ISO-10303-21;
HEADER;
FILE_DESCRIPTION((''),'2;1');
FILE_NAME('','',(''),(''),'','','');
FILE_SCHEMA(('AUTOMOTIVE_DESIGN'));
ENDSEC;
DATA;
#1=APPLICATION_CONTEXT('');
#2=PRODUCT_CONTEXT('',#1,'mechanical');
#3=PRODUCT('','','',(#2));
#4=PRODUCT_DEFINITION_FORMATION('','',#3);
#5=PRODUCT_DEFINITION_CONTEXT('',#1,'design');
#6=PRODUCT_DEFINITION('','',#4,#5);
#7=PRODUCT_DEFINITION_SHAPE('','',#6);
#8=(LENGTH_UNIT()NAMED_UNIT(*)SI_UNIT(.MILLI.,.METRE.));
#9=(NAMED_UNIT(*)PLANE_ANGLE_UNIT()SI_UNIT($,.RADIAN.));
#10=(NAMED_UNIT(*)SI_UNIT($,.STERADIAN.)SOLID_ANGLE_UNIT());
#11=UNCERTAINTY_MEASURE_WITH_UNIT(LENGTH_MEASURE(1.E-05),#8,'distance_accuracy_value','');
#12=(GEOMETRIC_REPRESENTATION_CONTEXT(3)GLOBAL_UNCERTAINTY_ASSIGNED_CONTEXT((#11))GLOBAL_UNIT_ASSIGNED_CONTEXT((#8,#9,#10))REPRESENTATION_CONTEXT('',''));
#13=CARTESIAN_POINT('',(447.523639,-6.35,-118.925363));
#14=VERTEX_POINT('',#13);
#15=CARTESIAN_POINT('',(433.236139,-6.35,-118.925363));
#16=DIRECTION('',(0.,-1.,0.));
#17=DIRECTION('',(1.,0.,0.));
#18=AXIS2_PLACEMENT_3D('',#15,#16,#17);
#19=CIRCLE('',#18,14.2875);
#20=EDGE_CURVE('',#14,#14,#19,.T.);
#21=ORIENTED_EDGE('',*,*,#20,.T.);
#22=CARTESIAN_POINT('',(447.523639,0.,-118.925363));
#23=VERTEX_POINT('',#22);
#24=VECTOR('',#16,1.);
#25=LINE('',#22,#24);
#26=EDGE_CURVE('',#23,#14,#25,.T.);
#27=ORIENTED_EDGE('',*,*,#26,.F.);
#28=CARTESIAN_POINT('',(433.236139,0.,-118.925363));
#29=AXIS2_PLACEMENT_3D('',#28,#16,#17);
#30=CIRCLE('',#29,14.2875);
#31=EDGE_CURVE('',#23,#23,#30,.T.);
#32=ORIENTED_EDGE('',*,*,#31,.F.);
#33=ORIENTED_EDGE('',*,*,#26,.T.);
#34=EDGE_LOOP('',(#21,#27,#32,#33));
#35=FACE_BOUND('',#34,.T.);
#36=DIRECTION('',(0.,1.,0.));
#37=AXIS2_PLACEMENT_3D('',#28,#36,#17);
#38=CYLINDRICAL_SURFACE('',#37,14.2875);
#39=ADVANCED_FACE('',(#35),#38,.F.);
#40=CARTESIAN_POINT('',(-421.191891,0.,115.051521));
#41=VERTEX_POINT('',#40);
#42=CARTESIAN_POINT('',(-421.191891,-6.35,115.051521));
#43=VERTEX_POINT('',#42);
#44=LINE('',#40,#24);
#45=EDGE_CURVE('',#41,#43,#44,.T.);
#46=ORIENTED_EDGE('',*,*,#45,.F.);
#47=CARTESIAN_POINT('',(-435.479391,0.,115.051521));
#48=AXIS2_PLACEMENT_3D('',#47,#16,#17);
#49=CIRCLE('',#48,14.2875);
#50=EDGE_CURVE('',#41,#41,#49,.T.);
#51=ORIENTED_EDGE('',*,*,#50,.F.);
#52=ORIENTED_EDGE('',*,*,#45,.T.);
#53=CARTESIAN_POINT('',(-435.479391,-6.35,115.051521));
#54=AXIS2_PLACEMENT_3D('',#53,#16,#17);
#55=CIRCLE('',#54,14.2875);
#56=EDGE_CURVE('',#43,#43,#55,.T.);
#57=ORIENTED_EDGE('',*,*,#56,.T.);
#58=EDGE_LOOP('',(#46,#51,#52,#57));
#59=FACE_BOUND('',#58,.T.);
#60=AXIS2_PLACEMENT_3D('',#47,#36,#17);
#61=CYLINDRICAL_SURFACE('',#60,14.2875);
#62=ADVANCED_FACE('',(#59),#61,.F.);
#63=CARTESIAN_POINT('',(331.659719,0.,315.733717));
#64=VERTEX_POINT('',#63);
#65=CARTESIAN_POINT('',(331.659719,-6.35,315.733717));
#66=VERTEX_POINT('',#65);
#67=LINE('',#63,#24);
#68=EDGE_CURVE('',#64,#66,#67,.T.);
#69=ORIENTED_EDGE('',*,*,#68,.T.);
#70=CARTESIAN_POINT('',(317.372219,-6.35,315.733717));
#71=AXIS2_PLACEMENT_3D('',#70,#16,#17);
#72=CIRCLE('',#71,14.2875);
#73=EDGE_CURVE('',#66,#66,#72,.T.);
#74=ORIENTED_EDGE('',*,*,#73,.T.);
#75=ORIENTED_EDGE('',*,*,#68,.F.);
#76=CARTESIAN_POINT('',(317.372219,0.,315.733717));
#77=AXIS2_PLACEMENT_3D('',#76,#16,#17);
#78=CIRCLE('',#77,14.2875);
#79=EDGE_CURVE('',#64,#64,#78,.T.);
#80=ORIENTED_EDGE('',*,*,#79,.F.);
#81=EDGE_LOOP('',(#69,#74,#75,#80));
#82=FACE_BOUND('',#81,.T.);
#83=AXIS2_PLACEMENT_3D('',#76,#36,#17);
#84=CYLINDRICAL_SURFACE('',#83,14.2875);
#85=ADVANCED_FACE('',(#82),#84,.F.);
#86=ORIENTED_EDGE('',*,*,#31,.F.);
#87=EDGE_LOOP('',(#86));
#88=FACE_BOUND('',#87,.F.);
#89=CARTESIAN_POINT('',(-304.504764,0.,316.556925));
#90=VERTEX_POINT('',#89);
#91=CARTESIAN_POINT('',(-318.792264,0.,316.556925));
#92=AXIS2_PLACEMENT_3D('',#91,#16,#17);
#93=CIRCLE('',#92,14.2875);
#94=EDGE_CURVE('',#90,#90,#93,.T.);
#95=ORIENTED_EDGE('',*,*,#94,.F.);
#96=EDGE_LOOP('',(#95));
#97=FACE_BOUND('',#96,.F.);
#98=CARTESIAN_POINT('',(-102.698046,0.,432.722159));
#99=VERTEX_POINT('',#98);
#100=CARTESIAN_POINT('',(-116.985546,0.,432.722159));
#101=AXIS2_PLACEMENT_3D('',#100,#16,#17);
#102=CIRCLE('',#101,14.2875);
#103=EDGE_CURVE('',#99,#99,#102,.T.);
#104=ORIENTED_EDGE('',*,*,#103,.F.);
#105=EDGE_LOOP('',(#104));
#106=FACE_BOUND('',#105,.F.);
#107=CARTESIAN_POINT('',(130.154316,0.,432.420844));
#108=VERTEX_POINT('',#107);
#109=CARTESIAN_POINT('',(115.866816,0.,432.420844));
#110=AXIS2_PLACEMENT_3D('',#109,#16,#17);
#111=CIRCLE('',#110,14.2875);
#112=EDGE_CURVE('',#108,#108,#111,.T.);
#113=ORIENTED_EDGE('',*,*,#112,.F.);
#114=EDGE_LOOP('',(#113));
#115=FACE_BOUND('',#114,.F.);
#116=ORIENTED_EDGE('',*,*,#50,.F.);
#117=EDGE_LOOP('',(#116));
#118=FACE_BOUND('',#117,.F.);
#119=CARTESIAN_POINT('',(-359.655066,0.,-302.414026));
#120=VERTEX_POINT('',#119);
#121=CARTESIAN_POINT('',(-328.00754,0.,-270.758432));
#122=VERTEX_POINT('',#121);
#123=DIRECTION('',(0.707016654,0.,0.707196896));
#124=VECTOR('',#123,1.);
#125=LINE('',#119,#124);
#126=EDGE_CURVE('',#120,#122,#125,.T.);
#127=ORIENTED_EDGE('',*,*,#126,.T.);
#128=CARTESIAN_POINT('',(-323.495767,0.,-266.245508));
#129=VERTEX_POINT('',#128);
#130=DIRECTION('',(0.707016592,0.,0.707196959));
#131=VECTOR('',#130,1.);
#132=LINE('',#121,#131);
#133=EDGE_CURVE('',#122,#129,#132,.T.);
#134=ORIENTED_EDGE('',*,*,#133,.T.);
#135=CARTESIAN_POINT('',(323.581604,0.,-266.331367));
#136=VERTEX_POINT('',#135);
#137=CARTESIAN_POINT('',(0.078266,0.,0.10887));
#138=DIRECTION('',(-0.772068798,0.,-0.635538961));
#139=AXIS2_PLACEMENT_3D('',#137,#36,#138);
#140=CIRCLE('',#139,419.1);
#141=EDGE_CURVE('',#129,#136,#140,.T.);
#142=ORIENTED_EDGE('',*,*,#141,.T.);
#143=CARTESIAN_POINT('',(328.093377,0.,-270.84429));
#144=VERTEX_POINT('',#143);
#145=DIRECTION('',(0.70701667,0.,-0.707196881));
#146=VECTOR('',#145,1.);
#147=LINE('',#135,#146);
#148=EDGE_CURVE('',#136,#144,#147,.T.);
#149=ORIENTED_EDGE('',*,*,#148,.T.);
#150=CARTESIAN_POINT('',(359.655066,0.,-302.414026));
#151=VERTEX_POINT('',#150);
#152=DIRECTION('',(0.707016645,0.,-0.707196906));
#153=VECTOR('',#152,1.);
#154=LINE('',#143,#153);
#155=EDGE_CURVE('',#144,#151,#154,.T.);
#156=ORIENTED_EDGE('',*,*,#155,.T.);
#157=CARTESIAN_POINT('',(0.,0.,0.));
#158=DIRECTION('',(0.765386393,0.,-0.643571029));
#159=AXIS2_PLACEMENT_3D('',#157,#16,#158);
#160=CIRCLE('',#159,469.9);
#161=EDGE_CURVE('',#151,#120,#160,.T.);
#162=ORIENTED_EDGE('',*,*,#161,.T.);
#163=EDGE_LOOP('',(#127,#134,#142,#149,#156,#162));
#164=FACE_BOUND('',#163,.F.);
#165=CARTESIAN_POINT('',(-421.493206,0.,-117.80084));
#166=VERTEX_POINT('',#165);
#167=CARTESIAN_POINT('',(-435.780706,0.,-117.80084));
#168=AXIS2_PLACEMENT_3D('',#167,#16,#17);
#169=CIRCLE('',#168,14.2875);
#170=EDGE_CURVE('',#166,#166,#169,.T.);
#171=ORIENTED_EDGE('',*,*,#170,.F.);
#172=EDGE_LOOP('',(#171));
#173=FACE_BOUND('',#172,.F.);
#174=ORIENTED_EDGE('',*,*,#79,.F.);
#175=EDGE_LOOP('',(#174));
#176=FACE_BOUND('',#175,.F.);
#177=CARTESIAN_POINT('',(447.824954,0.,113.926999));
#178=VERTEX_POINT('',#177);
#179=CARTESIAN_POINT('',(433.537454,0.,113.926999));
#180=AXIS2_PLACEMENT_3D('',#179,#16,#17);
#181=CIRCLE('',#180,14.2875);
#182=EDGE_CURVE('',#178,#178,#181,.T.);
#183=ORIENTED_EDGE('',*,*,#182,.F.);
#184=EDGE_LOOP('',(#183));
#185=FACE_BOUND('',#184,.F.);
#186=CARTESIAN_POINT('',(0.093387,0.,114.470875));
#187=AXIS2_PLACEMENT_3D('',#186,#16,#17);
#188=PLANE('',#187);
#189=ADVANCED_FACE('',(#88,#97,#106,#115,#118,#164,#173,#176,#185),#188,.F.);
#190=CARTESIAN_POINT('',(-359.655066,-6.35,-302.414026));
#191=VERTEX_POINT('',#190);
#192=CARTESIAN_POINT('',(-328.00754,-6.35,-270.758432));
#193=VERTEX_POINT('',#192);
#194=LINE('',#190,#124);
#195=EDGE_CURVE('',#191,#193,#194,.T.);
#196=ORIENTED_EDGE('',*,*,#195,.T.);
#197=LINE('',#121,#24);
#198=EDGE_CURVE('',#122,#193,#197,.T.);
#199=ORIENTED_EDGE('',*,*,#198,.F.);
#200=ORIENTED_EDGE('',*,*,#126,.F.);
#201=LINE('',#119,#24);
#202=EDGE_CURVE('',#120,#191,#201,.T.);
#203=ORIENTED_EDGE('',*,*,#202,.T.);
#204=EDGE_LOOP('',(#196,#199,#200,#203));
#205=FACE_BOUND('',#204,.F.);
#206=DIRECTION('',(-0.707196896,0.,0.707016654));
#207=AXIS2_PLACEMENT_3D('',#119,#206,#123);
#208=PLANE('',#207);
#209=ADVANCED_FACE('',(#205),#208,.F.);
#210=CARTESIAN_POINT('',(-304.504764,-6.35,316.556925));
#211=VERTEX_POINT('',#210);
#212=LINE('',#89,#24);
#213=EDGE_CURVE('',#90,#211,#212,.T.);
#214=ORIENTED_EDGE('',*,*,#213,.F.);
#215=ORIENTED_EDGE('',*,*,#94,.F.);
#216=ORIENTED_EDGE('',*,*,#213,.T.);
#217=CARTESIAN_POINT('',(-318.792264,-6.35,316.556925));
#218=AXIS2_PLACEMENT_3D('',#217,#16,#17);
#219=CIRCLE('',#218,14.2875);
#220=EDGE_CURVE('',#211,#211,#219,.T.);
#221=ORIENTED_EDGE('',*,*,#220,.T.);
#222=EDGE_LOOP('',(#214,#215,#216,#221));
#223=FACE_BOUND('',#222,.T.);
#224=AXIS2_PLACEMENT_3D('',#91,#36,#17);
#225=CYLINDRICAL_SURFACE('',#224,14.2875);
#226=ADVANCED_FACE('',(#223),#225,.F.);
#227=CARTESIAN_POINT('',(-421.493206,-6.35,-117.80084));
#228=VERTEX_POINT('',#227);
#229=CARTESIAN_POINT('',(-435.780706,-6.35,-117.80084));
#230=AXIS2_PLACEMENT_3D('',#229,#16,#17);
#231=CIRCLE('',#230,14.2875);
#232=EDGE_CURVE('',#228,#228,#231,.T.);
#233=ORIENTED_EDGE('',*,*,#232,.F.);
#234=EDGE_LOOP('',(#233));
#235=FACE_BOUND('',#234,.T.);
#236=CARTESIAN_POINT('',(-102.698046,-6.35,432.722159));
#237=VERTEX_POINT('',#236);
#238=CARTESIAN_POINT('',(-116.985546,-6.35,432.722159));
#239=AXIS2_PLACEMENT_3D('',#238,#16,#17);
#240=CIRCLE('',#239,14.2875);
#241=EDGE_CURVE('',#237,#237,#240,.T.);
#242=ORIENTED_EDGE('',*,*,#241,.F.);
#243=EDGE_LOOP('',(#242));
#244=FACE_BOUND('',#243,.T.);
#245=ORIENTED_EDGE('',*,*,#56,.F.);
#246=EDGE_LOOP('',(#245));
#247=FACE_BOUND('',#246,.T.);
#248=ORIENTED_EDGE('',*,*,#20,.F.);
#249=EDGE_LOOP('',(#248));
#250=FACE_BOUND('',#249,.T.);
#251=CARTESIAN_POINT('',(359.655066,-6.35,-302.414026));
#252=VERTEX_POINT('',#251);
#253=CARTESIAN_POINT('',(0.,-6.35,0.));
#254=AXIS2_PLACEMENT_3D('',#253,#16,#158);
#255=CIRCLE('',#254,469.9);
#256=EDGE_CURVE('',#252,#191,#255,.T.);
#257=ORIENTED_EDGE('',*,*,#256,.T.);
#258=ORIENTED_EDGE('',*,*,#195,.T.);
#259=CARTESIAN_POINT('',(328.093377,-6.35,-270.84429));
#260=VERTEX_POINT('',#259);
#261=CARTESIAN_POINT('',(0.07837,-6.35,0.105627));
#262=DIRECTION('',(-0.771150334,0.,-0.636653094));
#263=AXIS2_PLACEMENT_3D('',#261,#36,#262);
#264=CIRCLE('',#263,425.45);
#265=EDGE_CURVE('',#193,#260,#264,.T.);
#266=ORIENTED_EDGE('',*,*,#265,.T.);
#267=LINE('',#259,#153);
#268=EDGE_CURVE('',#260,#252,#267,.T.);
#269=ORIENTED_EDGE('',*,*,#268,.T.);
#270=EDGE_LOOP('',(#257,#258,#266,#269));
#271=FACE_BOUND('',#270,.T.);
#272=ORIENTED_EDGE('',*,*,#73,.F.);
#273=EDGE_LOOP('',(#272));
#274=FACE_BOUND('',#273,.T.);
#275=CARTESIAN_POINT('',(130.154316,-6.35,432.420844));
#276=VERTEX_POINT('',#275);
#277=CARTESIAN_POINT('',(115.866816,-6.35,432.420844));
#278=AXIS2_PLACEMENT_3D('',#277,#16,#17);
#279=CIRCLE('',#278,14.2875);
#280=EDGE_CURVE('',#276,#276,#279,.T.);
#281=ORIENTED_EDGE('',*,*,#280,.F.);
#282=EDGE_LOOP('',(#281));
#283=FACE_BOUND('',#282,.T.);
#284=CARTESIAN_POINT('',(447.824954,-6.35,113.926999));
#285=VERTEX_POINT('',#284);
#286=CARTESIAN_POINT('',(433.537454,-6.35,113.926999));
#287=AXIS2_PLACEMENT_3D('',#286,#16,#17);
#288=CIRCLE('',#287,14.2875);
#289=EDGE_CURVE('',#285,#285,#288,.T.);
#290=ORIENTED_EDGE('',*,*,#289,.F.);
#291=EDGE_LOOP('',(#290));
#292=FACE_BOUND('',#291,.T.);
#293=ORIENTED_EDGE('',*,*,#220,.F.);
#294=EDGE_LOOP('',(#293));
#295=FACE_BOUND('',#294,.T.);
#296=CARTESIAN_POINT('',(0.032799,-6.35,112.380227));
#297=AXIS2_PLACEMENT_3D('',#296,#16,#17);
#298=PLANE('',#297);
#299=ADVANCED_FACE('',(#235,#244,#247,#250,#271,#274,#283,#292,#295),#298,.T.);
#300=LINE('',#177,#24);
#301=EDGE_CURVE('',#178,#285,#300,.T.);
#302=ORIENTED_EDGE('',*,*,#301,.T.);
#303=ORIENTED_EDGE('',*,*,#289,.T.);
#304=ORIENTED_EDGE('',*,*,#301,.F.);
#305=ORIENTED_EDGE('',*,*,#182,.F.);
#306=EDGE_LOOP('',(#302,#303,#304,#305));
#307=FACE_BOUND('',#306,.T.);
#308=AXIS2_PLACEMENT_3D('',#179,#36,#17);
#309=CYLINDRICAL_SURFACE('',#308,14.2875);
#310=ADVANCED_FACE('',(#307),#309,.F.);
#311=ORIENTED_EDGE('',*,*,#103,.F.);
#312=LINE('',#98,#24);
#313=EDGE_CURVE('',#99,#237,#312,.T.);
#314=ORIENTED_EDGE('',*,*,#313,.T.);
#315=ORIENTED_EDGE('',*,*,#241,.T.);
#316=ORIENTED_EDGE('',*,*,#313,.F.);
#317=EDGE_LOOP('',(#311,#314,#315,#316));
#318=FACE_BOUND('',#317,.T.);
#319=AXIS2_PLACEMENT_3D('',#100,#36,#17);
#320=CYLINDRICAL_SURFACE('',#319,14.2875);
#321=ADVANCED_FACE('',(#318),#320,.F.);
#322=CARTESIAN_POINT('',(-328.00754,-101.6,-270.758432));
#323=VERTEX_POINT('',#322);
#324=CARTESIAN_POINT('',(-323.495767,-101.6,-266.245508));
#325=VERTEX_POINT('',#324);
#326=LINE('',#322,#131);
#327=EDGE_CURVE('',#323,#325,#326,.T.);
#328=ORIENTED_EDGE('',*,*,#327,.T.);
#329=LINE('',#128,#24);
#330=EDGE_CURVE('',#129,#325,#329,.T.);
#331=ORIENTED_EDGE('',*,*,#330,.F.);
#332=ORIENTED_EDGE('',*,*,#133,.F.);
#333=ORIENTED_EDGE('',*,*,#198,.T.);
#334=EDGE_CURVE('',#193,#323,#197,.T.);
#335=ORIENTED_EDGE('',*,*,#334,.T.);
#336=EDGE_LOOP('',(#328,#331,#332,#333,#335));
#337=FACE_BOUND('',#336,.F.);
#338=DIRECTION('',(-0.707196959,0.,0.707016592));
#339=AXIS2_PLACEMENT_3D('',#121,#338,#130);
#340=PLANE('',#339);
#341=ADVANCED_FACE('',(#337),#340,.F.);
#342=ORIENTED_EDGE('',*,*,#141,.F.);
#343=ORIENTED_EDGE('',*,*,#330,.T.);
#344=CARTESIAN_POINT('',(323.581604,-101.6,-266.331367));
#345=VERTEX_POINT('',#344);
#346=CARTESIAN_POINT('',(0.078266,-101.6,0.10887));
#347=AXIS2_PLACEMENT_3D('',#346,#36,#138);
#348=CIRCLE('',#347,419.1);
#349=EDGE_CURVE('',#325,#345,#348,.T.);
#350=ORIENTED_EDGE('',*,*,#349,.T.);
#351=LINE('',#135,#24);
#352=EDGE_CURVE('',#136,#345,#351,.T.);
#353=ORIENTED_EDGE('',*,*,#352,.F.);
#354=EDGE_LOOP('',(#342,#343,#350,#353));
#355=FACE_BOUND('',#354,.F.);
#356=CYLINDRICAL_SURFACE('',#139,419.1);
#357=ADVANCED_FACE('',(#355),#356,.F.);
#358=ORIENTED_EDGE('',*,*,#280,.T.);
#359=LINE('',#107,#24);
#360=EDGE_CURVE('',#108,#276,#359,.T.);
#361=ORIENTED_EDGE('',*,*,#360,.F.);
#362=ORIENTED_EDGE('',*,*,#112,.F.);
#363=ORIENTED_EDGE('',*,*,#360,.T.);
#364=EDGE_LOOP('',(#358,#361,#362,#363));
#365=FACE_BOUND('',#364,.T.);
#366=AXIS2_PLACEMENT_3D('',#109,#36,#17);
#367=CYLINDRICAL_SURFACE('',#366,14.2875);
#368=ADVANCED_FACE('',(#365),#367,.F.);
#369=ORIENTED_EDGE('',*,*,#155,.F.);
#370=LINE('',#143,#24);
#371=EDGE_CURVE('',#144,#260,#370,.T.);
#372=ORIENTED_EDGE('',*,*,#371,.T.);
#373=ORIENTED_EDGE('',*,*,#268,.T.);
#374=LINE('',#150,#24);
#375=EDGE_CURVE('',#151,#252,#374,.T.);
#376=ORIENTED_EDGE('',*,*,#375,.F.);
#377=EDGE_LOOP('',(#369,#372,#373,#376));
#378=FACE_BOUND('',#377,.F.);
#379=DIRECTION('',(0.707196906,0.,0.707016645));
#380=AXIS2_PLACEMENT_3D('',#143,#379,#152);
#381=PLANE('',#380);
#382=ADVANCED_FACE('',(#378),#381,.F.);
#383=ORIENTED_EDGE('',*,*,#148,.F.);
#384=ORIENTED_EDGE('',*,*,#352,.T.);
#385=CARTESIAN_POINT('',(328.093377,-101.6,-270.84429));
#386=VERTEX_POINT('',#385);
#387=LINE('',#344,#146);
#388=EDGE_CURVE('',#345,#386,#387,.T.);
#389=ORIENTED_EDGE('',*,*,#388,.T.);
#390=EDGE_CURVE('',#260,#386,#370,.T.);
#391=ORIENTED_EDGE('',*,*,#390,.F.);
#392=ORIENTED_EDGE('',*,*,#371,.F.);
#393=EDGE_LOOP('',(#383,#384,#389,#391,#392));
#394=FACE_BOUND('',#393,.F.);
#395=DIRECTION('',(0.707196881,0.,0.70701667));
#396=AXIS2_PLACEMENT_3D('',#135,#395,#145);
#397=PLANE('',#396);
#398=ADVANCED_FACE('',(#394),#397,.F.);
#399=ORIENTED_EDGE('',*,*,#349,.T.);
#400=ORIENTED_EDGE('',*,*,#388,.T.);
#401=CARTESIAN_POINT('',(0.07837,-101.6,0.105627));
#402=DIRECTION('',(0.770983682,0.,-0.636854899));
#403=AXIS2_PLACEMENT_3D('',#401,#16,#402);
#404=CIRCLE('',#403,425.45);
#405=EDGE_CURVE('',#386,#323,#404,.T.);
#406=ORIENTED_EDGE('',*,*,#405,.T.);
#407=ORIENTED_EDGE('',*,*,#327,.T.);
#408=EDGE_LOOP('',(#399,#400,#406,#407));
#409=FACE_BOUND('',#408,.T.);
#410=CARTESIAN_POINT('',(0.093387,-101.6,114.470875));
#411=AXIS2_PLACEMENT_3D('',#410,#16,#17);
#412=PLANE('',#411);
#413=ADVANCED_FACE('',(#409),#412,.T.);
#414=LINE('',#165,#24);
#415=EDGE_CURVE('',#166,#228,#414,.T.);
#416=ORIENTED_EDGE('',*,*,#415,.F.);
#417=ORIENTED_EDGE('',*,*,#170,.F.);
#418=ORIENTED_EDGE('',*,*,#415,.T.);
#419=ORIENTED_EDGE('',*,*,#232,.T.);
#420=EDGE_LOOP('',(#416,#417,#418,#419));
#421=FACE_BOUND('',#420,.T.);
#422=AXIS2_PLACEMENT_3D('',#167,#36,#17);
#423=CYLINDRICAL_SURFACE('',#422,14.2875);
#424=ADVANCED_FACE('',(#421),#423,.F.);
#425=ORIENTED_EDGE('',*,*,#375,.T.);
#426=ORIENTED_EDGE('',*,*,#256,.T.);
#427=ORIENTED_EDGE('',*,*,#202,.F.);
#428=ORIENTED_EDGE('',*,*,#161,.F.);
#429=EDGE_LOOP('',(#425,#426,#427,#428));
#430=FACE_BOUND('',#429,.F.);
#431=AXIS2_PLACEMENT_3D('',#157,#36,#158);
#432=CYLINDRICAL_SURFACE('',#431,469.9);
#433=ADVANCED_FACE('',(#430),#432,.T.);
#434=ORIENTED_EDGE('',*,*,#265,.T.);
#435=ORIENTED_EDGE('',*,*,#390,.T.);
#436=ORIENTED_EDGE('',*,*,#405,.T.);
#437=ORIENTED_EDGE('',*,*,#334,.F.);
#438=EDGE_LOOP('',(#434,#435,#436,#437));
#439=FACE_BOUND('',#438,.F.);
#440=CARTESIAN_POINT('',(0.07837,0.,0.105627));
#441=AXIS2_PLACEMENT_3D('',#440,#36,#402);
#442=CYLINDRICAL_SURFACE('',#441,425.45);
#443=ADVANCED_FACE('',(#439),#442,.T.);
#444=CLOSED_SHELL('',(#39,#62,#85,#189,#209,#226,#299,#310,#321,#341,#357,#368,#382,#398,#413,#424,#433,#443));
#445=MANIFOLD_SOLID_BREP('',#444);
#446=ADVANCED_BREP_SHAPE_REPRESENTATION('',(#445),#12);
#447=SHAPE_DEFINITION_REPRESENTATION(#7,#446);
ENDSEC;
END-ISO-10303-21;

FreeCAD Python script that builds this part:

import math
import FreeCAD as App
import Part
import Sketcher
Q = App.Units.Quantity

doc = App.newDocument("Part")
body = doc.addObject("PartDesign::Body", "Body")

sketch1 = body.newObject("Sketcher::SketchObject", "Sketch")
sketch1.AttachmentSupport = (doc.getObject("XZ_Plane"), [""])
sketch1.MapMode = "FlatFace"
sketch1.addGeometry([
    Part.LineSegment(App.Vector(328.093377, -270.84429, 0), App.Vector(359.655066, -302.414026, 0)),
    Part.ArcOfCircle(Part.Circle(App.Vector(0, 0, 0), App.Vector(0, 0, 1), 469.9), math.radians(-40.05862), math.radians(220.05862)),
    Part.LineSegment(App.Vector(-359.655066, -302.414026, 0), App.Vector(-328.00754, -270.758432, 0)),
    Part.ArcOfCircle(Part.Circle(App.Vector(0.07837, 0.105627, 0), App.Vector(0, 0, 1), 425.45), math.radians(-39.557695), math.radians(219.542699)),
    Part.Circle(App.Vector(-435.780706, -117.80084, 0), App.Vector(0, 0, 1), 14.2875),
    Part.Circle(App.Vector(-435.479391, 115.051521, 0), App.Vector(0, 0, 1), 14.2875),
    Part.Circle(App.Vector(433.236139, -118.925363, 0), App.Vector(0, 0, 1), 14.2875),
    Part.Circle(App.Vector(433.537454, 113.926999, 0), App.Vector(0, 0, 1), 14.2875),
    Part.Circle(App.Vector(-318.792264, 316.556925, 0), App.Vector(0, 0, 1), 14.2875),
    Part.Circle(App.Vector(-116.985546, 432.722159, 0), App.Vector(0, 0, 1), 14.2875),
    Part.Circle(App.Vector(115.866816, 432.420844, 0), App.Vector(0, 0, 1), 14.2875),
    Part.Circle(App.Vector(317.372219, 315.733717, 0), App.Vector(0, 0, 1), 14.2875),
], False)
sketch1.addConstraint([
    Sketcher.Constraint("Coincident", 0, 2, 1, 1),
    Sketcher.Constraint("Coincident", 1, 2, 2, 1),
    Sketcher.Constraint("Coincident", 2, 2, 3, 2),
    Sketcher.Constraint("Coincident", 3, 1, 0, 1),
    Sketcher.Constraint("Coincident", 1, 3, -1, 1),
    Sketcher.Constraint("Equal", 4, 5),
    Sketcher.Constraint("Equal", 5, 6),
    Sketcher.Constraint("Equal", 6, 7),
    Sketcher.Constraint("Equal", 7, 8),
    Sketcher.Constraint("Equal", 8, 9),
    Sketcher.Constraint("Equal", 9, 10),
    Sketcher.Constraint("Equal", 10, 11),
    Sketcher.Constraint("Horizontal", 0, 2, 1, 2),
    Sketcher.Constraint("Radius", 1, Q("18.5 in")),
    Sketcher.Constraint("Radius", 3, Q("16.75 in")),
    Sketcher.Constraint("Diameter", 4, Q("1.125 in")),
    Sketcher.Constraint("DistanceY", -1, 1, 7, 3, 113.926999),
    Sketcher.Constraint("DistanceY", 3, 3, 8, 3, 316.451298),
    Sketcher.Constraint("DistanceY", 4, 3, 9, 3, 550.522999),
    Sketcher.Constraint("Distance", 0, 44.640659),
    Sketcher.Constraint("DistanceX", -1, 1, 3, 3, 0.07837),
    Sketcher.Constraint("DistanceY", 4, 3, -1, 1, 117.80084),
    Sketcher.Constraint("DistanceX", 5, 3, -1, 1, 435.479391),
    Sketcher.Constraint("DistanceY", -1, 1, 5, 3, 115.051521),
    Sketcher.Constraint("DistanceX", -1, 1, 6, 3, 433.236139),
    Sketcher.Constraint("DistanceX", -1, 1, 11, 3, 317.372219),
    Sketcher.Constraint("DistanceX", 2, 2, -1, 1, 328.00754),
    Sketcher.Constraint("DistanceY", 3, 1, -1, 1, 270.84429),
    Sketcher.Constraint("DistanceY", 6, 3, 3, 3, 119.03099),
    Sketcher.Constraint("DistanceY", 6, 3, 7, 3, 232.852362),
    Sketcher.Constraint("DistanceX", 4, 3, 7, 3, 869.31816),
    Sketcher.Constraint("DistanceX", 8, 3, 7, 3, 752.329718),
    Sketcher.Constraint("DistanceX", 4, 3, 9, 3, 318.79516),
    Sketcher.Constraint("DistanceX", 9, 3, 10, 3, 232.852362),
    Sketcher.Constraint("DistanceY", 8, 3, 10, 3, 115.863919),
    Sketcher.Constraint("DistanceY", 7, 3, 11, 3, 201.806718),
    Sketcher.Constraint("DistanceX", 0, 2, 7, 3, 73.882388),
])
pad1 = body.newObject("PartDesign::Pad", "Pad")
pad1.Profile = sketch1
pad1.Length = Q("0.25 in")

sketch2 = body.newObject("Sketcher::SketchObject", "Sketch001")
sketch2.AttachmentSupport = (doc.getObject("XZ_Plane"), [""])
sketch2.MapMode = "FlatFace"
sketch2.addGeometry([
    Part.LineSegment(App.Vector(323.581604, -266.331367, 0), App.Vector(328.093377, -270.84429, 0)),
    Part.ArcOfCircle(Part.Circle(App.Vector(0.07837, 0.105627, 0), App.Vector(0, 0, 1), 425.45), math.radians(-39.557695), math.radians(219.542699)),
    Part.LineSegment(App.Vector(-328.00754, -270.758432, 0), App.Vector(-323.495767, -266.245508, 0)),
    Part.ArcOfCircle(Part.Circle(App.Vector(0.078266, 0.10887, 0), App.Vector(0, 0, 1), 419.1), math.radians(-39.475174), math.radians(219.45997)),
], False)
sketch2.addConstraint([
    Sketcher.Constraint("Coincident", 0, 2, 1, 1),
    Sketcher.Constraint("Coincident", 1, 2, 2, 1),
    Sketcher.Constraint("Coincident", 2, 2, 3, 2),
    Sketcher.Constraint("Coincident", 3, 1, 0, 1),
    Sketcher.Constraint("Equal", 0, 2),
    Sketcher.Constraint("Radius", 3, Q("16.5 in")),
    Sketcher.Constraint("Radius", 1, Q("16.75 in")),
    Sketcher.Constraint("DistanceX", -1, 1, 1, 3, 0.07837),
    Sketcher.Constraint("DistanceY", -1, 1, 3, 3, 0.10887),
    Sketcher.Constraint("DistanceY", 0, 2, -1, 1, 270.84429),
    Sketcher.Constraint("DistanceX", 1, 2, -1, 1, 328.00754),
    Sketcher.Constraint("DistanceX", 3, 3, 0, 2, 328.015111),
    Sketcher.Constraint("DistanceY", 2, 2, 3, 3, 266.354378),
    Sketcher.Constraint("DistanceX", 2, 2, 3, 1, 647.077371),
])
pad2 = body.newObject("PartDesign::Pad", "Pad001")
pad2.Profile = sketch2
pad2.Length = Q("4 in")

doc.recompute()
